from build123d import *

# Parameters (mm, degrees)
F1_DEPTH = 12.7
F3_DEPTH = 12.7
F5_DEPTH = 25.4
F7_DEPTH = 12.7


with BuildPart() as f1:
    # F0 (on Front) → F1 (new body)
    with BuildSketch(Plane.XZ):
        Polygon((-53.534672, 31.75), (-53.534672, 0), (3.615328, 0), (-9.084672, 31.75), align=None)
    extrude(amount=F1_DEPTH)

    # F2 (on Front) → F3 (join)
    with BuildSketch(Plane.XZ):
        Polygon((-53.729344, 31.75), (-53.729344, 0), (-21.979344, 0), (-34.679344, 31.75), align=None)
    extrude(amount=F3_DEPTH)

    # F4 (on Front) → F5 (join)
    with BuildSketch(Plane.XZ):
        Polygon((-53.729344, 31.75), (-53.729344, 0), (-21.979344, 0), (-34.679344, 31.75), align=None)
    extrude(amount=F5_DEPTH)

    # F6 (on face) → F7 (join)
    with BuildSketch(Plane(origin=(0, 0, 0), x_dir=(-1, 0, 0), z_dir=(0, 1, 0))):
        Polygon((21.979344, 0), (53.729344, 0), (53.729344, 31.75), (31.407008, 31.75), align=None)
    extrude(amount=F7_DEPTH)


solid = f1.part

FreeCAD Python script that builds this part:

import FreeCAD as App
import Part
import Sketcher
Q = App.Units.Quantity

doc = App.newDocument("Part")
params = doc.addObject("Spreadsheet::Sheet", "Params")
for row, (alias, value) in enumerate([
    ("sketch1_width", "2.25 in"),
    ("sketch1_width2", "1.75 in"),
    ("sketch1_height", "1.25 in"),
    ("pad1_length", "0.5 in"),
    ("sketch2_width", "1.25 in"),
    ("sketch2_width2", "0.75 in"),
    ("pad2_length", "0.5 in"),
    ("sketch3_width", "1.25 in"),
    ("sketch3_width2", "0.75 in"),
    ("pad3_length", "1 in"),
    ("sketch4_width", "1.25 in"),
    ("pad4_length", "0.5 in"),
], start=1):
    params.set(f"A{row}", alias)
    params.set(f"B{row}", "=" + value)
    params.setAlias(f"B{row}", alias)

body = doc.addObject("PartDesign::Body", "Body")

# Sketch on XZ plane
sketch1 = doc.addObject("Sketcher::SketchObject", "Sketch")
body.addObject(sketch1)
sketch1.AttachmentSupport = (doc.XZ_Plane, [""])
sketch1.MapMode = "FlatFace"
sketch1.addGeometry(Part.LineSegment(App.Vector(-54, 32, 0), App.Vector(-54, 0, 0)), False)
sketch1.addGeometry(Part.LineSegment(App.Vector(-54, 0, 0), App.Vector(4, 0, 0)), False)
sketch1.addGeometry(Part.LineSegment(App.Vector(4, 0, 0), App.Vector(-9, 32, 0)), False)
sketch1.addGeometry(Part.LineSegment(App.Vector(-9, 32, 0), App.Vector(-54, 32, 0)), False)
sketch1.addConstraint(Sketcher.Constraint("Coincident", 0, 2, 1, 1))
sketch1.addConstraint(Sketcher.Constraint("Coincident", 1, 2, 2, 1))
sketch1.addConstraint(Sketcher.Constraint("Coincident", 2, 2, 3, 1))
sketch1.addConstraint(Sketcher.Constraint("Coincident", 3, 2, 0, 1))
sketch1.addConstraint(Sketcher.Constraint("Vertical", 0))
sketch1.addConstraint(Sketcher.Constraint("Horizontal", 1))
sketch1.addConstraint(Sketcher.Constraint("Horizontal", 3))
sketch1.addConstraint(Sketcher.Constraint("PointOnObject", 0, 2, -1))
sketch1.addConstraint(Sketcher.Constraint("DistanceX", 1, 1, 1, 2, Q("2.25 in")))
sketch1.addConstraint(Sketcher.Constraint("DistanceX", 3, 2, 3, 1, Q("1.75 in")))
sketch1.addConstraint(Sketcher.Constraint("DistanceY", 0, 2, 0, 1, Q("1.25 in")))
sketch1.addConstraint(Sketcher.Constraint("DistanceX", 0, 2, -1, 1, Q("53.534672 mm")))
sketch1.setExpression("Constraints[8]", "Params.sketch1_width")
sketch1.setExpression("Constraints[9]", "Params.sketch1_width2")
sketch1.setExpression("Constraints[10]", "Params.sketch1_height")
pad1 = doc.addObject("PartDesign::Pad", "Pad")
body.addObject(pad1)
pad1.Profile = sketch1
pad1.setExpression("Length", "Params.pad1_length")

# Sketch on XZ plane
sketch2 = doc.addObject("Sketcher::SketchObject", "Sketch001")
body.addObject(sketch2)
sketch2.AttachmentSupport = (doc.XZ_Plane, [""])
sketch2.MapMode = "FlatFace"
sketch2.addGeometry(Part.LineSegment(App.Vector(-54, 32, 0), App.Vector(-54, 0, 0)), False)
sketch2.addGeometry(Part.LineSegment(App.Vector(-54, 0, 0), App.Vector(-22, 0, 0)), False)
sketch2.addGeometry(Part.LineSegment(App.Vector(-22, 0, 0), App.Vector(-35, 32, 0)), False)
sketch2.addGeometry(Part.LineSegment(App.Vector(-35, 32, 0), App.Vector(-54, 32, 0)), False)
sketch2.addConstraint(Sketcher.Constraint("Coincident", 0, 2, 1, 1))
sketch2.addConstraint(Sketcher.Constraint("Coincident", 1, 2, 2, 1))
sketch2.addConstraint(Sketcher.Constraint("Coincident", 2, 2, 3, 1))
sketch2.addConstraint(Sketcher.Constraint("Coincident", 3, 2, 0, 1))
sketch2.addConstraint(Sketcher.Constraint("Vertical", 0))
sketch2.addConstraint(Sketcher.Constraint("Horizontal", 1))
sketch2.addConstraint(Sketcher.Constraint("Horizontal", 3))
sketch2.addConstraint(Sketcher.Constraint("PointOnObject", 0, 2, -1))
sketch2.addConstraint(Sketcher.Constraint("Equal", 1, 0))
sketch2.addConstraint(Sketcher.Constraint("DistanceX", 1, 1, 1, 2, Q("1.25 in")))
sketch2.addConstraint(Sketcher.Constraint("DistanceX", 3, 2, 3, 1, Q("0.75 in")))
sketch2.addConstraint(Sketcher.Constraint("DistanceX", 0, 2, -1, 1, Q("53.729344 mm")))
sketch2.setExpression("Constraints[9]", "Params.sketch2_width")
sketch2.setExpression("Constraints[10]", "Params.sketch2_width2")
pad2 = doc.addObject("PartDesign::Pad", "Pad001")
body.addObject(pad2)
pad2.Profile = sketch2
pad2.setExpression("Length", "Params.pad2_length")

# Sketch on XZ plane
sketch3 = doc.addObject("Sketcher::SketchObject", "Sketch002")
body.addObject(sketch3)
sketch3.AttachmentSupport = (doc.XZ_Plane, [""])
sketch3.MapMode = "FlatFace"
sketch3.addGeometry(Part.LineSegment(App.Vector(-54, 32, 0), App.Vector(-54, 0, 0)), False)
sketch3.addGeometry(Part.LineSegment(App.Vector(-54, 0, 0), App.Vector(-22, 0, 0)), False)
sketch3.addGeometry(Part.LineSegment(App.Vector(-22, 0, 0), App.Vector(-35, 32, 0)), False)
sketch3.addGeometry(Part.LineSegment(App.Vector(-35, 32, 0), App.Vector(-54, 32, 0)), False)
sketch3.addConstraint(Sketcher.Constraint("Coincident", 0, 2, 1, 1))
sketch3.addConstraint(Sketcher.Constraint("Coincident", 1, 2, 2, 1))
sketch3.addConstraint(Sketcher.Constraint("Coincident", 2, 2, 3, 1))
sketch3.addConstraint(Sketcher.Constraint("Coincident", 3, 2, 0, 1))
sketch3.addConstraint(Sketcher.Constraint("Vertical", 0))
sketch3.addConstraint(Sketcher.Constraint("Horizontal", 1))
sketch3.addConstraint(Sketcher.Constraint("Horizontal", 3))
sketch3.addConstraint(Sketcher.Constraint("PointOnObject", 0, 2, -1))
sketch3.addConstraint(Sketcher.Constraint("Equal", 1, 0))
sketch3.addConstraint(Sketcher.Constraint("DistanceX", 1, 1, 1, 2, Q("1.25 in")))
sketch3.addConstraint(Sketcher.Constraint("DistanceX", 3, 2, 3, 1, Q("0.75 in")))
sketch3.addConstraint(Sketcher.Constraint("DistanceX", 0, 2, -1, 1, Q("53.729344 mm")))
sketch3.setExpression("Constraints[9]", "Params.sketch3_width")
sketch3.setExpression("Constraints[10]", "Params.sketch3_width2")
pad3 = doc.addObject("PartDesign::Pad", "Pad002")
body.addObject(pad3)
pad3.Profile = sketch3
pad3.setExpression("Length", "Params.pad3_length")

# Sketch on XZ plane
sketch4 = doc.addObject("Sketcher::SketchObject", "Sketch003")
body.addObject(sketch4)
sketch4.AttachmentSupport = (doc.XZ_Plane, [""])
sketch4.MapMode = "FlatFace"
sketch4.addGeometry(Part.LineSegment(App.Vector(-22, 0, 0), App.Vector(-54, 0, 0)), False)
sketch4.addGeometry(Part.LineSegment(App.Vector(-54, 0, 0), App.Vector(-54, 32, 0)), False)
sketch4.addGeometry(Part.LineSegment(App.Vector(-54, 32, 0), App.Vector(-31, 32, 0)), False)
sketch4.addGeometry(Part.LineSegment(App.Vector(-31, 32, 0), App.Vector(-22, 0, 0)), False)
sketch4.addConstraint(Sketcher.Constraint("Coincident", 0, 2, 1, 1))
sketch4.addConstraint(Sketcher.Constraint("Coincident", 1, 2, 2, 1))
sketch4.addConstraint(Sketcher.Constraint("Coincident", 2, 2, 3, 1))
sketch4.addConstraint(Sketcher.Constraint("Coincident", 3, 2, 0, 1))
sketch4.addConstraint(Sketcher.Constraint("Horizontal", 0))
sketch4.addConstraint(Sketcher.Constraint("Vertical", 1))
sketch4.addConstraint(Sketcher.Constraint("Horizontal", 2))
sketch4.addConstraint(Sketcher.Constraint("PointOnObject", 0, 2, -1))
sketch4.addConstraint(Sketcher.Constraint("Equal", 0, 1))
sketch4.addConstraint(Sketcher.Constraint("DistanceX", 0, 2, 0, 1, Q("1.25 in")))
sketch4.addConstraint(Sketcher.Constraint("DistanceX", 2, 1, 2, 2, Q("22.322336 mm")))
sketch4.addConstraint(Sketcher.Constraint("DistanceX", 2, 2, -1, 1, Q("31.407008 mm")))
sketch4.setExpression("Constraints[9]", "Params.sketch4_width")
pad4 = doc.addObject("PartDesign::Pad", "Pad003")
body.addObject(pad4)
pad4.Profile = sketch4
pad4.setExpression("Length", "Params.pad4_length")
pad4.Reversed = True

doc.recompute()
